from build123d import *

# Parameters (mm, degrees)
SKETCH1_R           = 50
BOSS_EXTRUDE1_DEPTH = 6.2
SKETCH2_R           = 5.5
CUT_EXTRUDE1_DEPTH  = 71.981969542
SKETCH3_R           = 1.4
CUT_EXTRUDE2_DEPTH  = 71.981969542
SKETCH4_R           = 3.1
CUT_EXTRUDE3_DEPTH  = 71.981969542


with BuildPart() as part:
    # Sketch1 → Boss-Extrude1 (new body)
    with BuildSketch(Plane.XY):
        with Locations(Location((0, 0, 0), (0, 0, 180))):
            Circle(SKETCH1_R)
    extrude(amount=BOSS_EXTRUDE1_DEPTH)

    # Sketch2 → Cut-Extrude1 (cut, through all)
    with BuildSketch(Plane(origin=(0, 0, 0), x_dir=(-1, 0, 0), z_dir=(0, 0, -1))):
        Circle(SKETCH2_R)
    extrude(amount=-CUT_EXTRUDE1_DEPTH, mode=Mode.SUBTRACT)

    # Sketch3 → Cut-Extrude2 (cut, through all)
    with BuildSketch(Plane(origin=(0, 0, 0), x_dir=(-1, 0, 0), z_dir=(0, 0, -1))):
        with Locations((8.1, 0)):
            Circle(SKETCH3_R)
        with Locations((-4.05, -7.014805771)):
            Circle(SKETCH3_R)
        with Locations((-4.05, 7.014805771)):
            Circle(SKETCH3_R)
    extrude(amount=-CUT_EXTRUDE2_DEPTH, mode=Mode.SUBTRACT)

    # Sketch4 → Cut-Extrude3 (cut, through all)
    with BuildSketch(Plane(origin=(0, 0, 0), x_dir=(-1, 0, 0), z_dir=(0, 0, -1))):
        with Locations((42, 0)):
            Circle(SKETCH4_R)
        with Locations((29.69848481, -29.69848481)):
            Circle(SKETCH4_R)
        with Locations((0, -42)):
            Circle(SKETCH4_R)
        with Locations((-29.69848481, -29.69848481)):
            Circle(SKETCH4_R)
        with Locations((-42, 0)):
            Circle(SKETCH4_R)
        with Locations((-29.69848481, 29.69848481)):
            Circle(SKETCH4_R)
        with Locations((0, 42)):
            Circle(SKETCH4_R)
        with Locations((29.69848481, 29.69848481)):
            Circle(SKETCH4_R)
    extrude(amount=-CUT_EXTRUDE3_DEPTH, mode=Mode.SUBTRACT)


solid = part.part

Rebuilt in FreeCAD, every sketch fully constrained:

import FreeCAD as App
import Part
import Sketcher
from FreeCAD import Vector

doc = App.newDocument("Part")
params = doc.addObject("Spreadsheet::Sheet", "Params")
for row, (alias, value) in enumerate([
    ("sketch1_diameter", "100 mm"),
    ("pad1_length", "6.2 mm"),
    ("sketch2_diameter", "11 mm"),
    ("sketch3_diameter", "2.8 mm"),
    ("sketch4_diameter", "6.2 mm"),
], start=1):
    params.set(f"A{row}", alias)
    params.set(f"B{row}", "=" + value)
    params.setAlias(f"B{row}", alias)

body = doc.addObject("PartDesign::Body", "Body")

sketch1 = doc.addObject("Sketcher::SketchObject", "Sketch")
body.addObject(sketch1)
sketch1.AttachmentSupport = (doc.XY_Plane, [""])
sketch1.MapMode = "FlatFace"
sketch1.addGeometry(Part.Circle(Vector(0, 0, 0), Vector(0, 0, 1), 50), False)
sketch1.addConstraint([
    Sketcher.Constraint("Coincident", 0, 3, -1, 1),
    Sketcher.Constraint("Diameter", 0, 100.0),
])
sketch1.setExpression("Constraints[1]", "Params.sketch1_diameter")
pad1 = doc.addObject("PartDesign::Pad", "Pad")
body.addObject(pad1)
pad1.Profile = sketch1
pad1.setExpression("Length", "Params.pad1_length")

sketch2 = doc.addObject("Sketcher::SketchObject", "Sketch001")
body.addObject(sketch2)
sketch2.AttachmentSupport = (doc.XY_Plane, [""])
sketch2.MapMode = "FlatFace"
sketch2.addGeometry(Part.Circle(Vector(0, 0, 0), Vector(0, 0, 1), 6), False)
sketch2.addConstraint([
    Sketcher.Constraint("Coincident", 0, 3, -1, 1),
    Sketcher.Constraint("Diameter", 0, 11.0),
])
sketch2.setExpression("Constraints[1]", "Params.sketch2_diameter")
pocket1 = doc.addObject("PartDesign::Pocket", "Pocket")
body.addObject(pocket1)
pocket1.Profile = sketch2
pocket1.Type = "ThroughAll"
pocket1.Reversed = True

sketch3 = doc.addObject("Sketcher::SketchObject", "Sketch002")
body.addObject(sketch3)
sketch3.AttachmentSupport = (doc.XY_Plane, [""])
sketch3.MapMode = "FlatFace"
sketch3.addGeometry([
    Part.Circle(Vector(-8.1, 0, 0), Vector(0, 0, 1), 1.4),
    Part.Circle(Vector(4, -7, 0), Vector(0, 0, 1), 1.4),
    Part.Circle(Vector(4, 7, 0), Vector(0, 0, 1), 1.4),
], False)
sketch3.addConstraint([
    Sketcher.Constraint("Equal", 0, 1),
    Sketcher.Constraint("Equal", 1, 2),
    Sketcher.Constraint("Symmetric", 1, 3, 2, 3, -1),
    Sketcher.Constraint("PointOnObject", 0, 3, -1),
    Sketcher.Constraint("Diameter", 0, 2.8),
    Sketcher.Constraint("DistanceX", 0, 3, -1, 1, 8.1),
    Sketcher.Constraint("DistanceX", -1, 1, 1, 3, 4.05),
    Sketcher.Constraint("DistanceY", 1, 3, 2, 3, 14.029612),
])
sketch3.setExpression("Constraints[4]", "Params.sketch3_diameter")
pocket2 = doc.addObject("PartDesign::Pocket", "Pocket001")
body.addObject(pocket2)
pocket2.Profile = sketch3
pocket2.Type = "ThroughAll"
pocket2.Reversed = True

sketch4 = doc.addObject("Sketcher::SketchObject", "Sketch003")
body.addObject(sketch4)
sketch4.AttachmentSupport = (doc.XY_Plane, [""])
sketch4.MapMode = "FlatFace"
sketch4.addGeometry([
    Part.Circle(Vector(-42, 0, 0), Vector(0, 0, 1), 3.1),
    Part.Circle(Vector(-29.7, -29.7, 0), Vector(0, 0, 1), 3.1),
    Part.Circle(Vector(0, -42, 0), Vector(0, 0, 1), 3.1),
    Part.Circle(Vector(29.7, -29.7, 0), Vector(0, 0, 1), 3.1),
    Part.Circle(Vector(42, 0, 0), Vector(0, 0, 1), 3.1),
    Part.Circle(Vector(29.7, 29.7, 0), Vector(0, 0, 1), 3.1),
    Part.Circle(Vector(0, 42, 0), Vector(0, 0, 1), 3.1),
    Part.Circle(Vector(-29.7, 29.7, 0), Vector(0, 0, 1), 3.1),
], False)
sketch4.addConstraint([
    Sketcher.Constraint("Equal", 0, 1),
    Sketcher.Constraint("Equal", 1, 2),
    Sketcher.Constraint("Equal", 2, 3),
    Sketcher.Constraint("Equal", 3, 4),
    Sketcher.Constraint("Equal", 4, 5),
    Sketcher.Constraint("Equal", 5, 6),
    Sketcher.Constraint("Equal", 6, 7),
    Sketcher.Constraint("Symmetric", 0, 3, 4, 3, -1, 1),
    Sketcher.Constraint("Symmetric", 1, 3, 5, 3, -1, 1),
    Sketcher.Constraint("Symmetric", 2, 3, 6, 3, -1, 1),
    Sketcher.Constraint("Symmetric", 3, 3, 7, 3, -1, 1),
    Sketcher.Constraint("Symmetric", 1, 3, 3, 3, -2),
    Sketcher.Constraint("PointOnObject", 0, 3, -1),
    Sketcher.Constraint("PointOnObject", 2, 3, -2),
    Sketcher.Constraint("Diameter", 0, 6.2),
    Sketcher.Constraint("DistanceX", 0, 3, -1, 1, 42.0),
    Sketcher.Constraint("DistanceY", 2, 3, -1, 1, 42.0),
    Sketcher.Constraint("DistanceX", 1, 3, 3, 3, 59.39697),
    Sketcher.Constraint("DistanceY", 3, 3, 5, 3, 59.39697),
])
sketch4.setExpression("Constraints[14]", "Params.sketch4_diameter")
pocket3 = doc.addObject("PartDesign::Pocket", "Pocket002")
body.addObject(pocket3)
pocket3.Profile = sketch4
pocket3.Type = "ThroughAll"
pocket3.Reversed = True

doc.recompute()
